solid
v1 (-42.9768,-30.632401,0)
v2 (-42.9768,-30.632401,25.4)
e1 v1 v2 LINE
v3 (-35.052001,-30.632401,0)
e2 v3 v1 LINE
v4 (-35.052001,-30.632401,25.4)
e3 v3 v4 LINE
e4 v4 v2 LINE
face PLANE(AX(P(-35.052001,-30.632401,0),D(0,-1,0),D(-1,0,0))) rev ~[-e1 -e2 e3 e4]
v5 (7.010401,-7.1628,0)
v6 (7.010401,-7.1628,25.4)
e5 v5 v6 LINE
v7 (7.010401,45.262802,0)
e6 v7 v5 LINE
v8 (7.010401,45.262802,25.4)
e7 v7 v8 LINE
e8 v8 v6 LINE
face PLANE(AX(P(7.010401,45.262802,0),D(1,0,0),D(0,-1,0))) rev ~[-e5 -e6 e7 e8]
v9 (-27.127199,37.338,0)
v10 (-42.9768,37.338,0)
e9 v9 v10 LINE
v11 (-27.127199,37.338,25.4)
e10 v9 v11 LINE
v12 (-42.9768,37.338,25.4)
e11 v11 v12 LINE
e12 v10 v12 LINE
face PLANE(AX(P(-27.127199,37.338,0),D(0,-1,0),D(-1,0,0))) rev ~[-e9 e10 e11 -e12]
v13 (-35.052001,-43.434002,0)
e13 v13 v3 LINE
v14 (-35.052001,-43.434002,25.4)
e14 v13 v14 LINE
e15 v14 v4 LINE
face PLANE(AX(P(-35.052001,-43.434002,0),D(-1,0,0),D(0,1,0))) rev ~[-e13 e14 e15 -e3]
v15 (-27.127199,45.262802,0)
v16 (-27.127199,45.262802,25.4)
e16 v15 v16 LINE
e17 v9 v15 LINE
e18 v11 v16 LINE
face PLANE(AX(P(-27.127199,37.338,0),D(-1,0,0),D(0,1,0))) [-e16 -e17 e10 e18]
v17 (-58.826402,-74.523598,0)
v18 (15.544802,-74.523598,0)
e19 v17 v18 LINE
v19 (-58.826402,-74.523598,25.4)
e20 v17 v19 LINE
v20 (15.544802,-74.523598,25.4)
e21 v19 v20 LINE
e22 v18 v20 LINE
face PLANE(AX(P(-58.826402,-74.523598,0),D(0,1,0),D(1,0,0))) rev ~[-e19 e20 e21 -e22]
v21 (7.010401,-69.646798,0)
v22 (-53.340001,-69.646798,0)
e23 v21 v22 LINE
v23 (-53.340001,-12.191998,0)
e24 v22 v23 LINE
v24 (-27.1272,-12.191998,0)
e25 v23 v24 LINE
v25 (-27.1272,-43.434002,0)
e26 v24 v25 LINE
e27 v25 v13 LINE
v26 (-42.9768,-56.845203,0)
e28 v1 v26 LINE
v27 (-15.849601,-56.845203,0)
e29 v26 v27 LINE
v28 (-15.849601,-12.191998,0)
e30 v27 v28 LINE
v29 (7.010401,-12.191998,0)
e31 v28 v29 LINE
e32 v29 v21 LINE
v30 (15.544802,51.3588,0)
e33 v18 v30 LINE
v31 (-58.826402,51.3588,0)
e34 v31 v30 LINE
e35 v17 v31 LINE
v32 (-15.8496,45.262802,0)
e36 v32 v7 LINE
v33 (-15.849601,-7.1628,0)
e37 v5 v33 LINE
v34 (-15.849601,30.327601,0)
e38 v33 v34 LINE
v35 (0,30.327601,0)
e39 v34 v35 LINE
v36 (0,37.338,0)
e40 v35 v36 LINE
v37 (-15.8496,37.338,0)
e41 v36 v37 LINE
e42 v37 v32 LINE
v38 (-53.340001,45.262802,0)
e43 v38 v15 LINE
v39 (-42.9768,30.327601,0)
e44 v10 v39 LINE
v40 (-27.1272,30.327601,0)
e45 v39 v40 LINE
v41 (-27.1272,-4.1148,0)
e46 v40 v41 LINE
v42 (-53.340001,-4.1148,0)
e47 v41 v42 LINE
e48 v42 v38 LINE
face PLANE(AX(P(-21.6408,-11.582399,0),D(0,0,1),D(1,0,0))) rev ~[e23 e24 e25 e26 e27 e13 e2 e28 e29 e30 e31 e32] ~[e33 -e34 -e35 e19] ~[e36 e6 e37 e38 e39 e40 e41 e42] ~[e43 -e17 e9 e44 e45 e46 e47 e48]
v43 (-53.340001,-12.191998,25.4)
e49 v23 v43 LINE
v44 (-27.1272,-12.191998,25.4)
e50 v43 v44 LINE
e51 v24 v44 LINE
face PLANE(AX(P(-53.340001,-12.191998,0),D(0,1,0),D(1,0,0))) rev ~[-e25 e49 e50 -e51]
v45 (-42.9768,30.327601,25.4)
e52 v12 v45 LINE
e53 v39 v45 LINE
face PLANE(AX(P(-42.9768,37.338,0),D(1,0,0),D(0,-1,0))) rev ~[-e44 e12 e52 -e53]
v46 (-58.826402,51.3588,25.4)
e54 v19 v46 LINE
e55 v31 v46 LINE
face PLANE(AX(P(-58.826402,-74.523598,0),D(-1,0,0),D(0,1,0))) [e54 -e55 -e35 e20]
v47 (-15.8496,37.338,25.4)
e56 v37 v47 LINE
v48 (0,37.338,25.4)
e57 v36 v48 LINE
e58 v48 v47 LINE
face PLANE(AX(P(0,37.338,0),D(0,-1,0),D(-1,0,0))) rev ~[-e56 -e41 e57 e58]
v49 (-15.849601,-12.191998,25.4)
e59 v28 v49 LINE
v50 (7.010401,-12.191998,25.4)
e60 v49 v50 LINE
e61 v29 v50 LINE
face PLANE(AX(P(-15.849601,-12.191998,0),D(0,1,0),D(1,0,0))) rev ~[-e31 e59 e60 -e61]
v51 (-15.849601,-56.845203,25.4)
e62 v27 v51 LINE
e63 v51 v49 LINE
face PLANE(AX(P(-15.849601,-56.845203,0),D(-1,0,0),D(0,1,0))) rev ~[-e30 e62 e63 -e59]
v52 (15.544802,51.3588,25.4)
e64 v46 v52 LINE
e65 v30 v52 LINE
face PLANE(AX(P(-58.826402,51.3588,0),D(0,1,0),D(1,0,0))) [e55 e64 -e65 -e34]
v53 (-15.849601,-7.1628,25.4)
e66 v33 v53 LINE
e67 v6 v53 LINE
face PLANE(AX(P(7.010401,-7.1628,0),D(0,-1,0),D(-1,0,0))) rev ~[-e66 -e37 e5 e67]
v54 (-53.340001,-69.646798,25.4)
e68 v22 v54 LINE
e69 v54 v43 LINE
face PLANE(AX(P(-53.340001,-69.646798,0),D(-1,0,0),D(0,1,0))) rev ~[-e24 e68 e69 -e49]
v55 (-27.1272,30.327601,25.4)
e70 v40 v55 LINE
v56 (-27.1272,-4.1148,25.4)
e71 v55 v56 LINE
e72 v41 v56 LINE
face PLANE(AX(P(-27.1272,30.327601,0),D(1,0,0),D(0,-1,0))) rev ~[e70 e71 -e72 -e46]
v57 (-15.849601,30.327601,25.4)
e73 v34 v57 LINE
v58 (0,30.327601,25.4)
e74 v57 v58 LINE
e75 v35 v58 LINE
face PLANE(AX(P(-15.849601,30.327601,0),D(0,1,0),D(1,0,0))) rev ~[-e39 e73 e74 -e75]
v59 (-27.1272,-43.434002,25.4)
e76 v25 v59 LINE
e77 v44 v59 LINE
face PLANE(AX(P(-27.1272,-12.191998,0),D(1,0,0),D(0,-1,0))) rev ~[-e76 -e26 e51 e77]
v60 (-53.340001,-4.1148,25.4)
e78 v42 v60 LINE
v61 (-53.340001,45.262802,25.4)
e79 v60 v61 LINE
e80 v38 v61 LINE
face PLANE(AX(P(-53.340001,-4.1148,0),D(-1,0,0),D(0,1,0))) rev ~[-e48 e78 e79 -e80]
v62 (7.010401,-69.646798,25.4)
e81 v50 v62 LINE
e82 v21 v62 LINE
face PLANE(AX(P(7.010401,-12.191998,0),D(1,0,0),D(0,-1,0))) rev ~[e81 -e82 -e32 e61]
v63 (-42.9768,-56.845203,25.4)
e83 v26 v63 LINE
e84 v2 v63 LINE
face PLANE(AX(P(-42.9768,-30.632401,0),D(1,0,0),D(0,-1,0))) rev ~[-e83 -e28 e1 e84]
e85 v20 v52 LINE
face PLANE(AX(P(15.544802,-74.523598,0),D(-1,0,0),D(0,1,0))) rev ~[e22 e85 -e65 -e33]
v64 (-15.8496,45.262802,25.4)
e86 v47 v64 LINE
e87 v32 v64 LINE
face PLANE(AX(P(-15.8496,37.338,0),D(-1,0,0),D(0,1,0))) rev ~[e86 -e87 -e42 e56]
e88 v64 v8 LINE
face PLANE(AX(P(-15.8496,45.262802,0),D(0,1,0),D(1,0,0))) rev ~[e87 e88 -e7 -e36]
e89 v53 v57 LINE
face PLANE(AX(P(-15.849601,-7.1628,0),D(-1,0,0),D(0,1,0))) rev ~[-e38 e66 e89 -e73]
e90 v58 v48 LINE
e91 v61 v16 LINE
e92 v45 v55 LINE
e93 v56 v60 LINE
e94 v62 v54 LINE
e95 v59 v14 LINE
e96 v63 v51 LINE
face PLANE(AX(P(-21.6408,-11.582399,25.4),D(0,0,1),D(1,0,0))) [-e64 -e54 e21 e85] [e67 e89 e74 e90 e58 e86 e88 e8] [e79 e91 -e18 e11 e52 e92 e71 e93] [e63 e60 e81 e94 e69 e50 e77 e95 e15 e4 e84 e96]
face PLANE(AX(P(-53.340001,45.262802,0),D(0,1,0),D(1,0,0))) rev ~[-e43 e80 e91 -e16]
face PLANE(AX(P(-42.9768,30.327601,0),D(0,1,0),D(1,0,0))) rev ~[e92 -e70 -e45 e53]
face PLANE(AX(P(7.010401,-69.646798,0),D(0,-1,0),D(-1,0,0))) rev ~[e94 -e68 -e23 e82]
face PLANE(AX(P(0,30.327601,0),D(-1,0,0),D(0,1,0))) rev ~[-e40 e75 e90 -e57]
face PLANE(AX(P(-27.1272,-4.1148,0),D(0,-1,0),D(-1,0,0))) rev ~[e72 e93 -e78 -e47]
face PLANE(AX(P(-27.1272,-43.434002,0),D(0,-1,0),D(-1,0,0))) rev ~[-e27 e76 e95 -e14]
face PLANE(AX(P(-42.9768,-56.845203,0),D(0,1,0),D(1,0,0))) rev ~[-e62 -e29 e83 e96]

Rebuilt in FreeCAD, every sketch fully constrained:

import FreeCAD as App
import Part
import Sketcher
Q = App.Units.Quantity


def add_polygon(sketch, points):
    """Adds a closed chain of lines whose ends are joined by coincident constraints."""
    first, n = sketch.GeometryCount, len(points)
    for a, b in zip(points, points[1:] + points[:1]):
        sketch.addGeometry(Part.LineSegment(App.Vector(*a, 0), App.Vector(*b, 0)), False)
    for i in range(n):
        sketch.addConstraint(Sketcher.Constraint("Coincident", first + i, 2, first + (i + 1) % n, 1))

doc = App.newDocument("Part")
body = doc.addObject("PartDesign::Body", "Body")

# Sketch on XY plane
sketch1 = doc.addObject("Sketcher::SketchObject", "Sketch")
body.addObject(sketch1)
sketch1.AttachmentSupport = (doc.XY_Plane, [""])
sketch1.MapMode = "FlatFace"
add_polygon(sketch1, [(-59, 51), (-59, -75), (16, -75), (16, 51)])  # lines 0-3
add_polygon(sketch1, [(-53, -70), (-53, -12), (-27, -12), (-27, -43), (-35, -43), (-35, -31), (-43, -31), (-43, -57), (-16, -57), (-16, -12), (7, -12), (7, -70)])  # lines 4-15
add_polygon(sketch1, [(-53, -4), (-53, 45), (-27, 45), (-27, 37), (-43, 37), (-43, 30), (-27, 30), (-27, -4)])  # lines 16-23
add_polygon(sketch1, [(-16, 45), (7, 45), (7, -7), (-16, -7), (-16, 30), (0, 30), (0, 37), (-16, 37)])  # lines 24-31
sketch1.addConstraint([
    Sketcher.Constraint("Vertical", 0),
    Sketcher.Constraint("Horizontal", 1),
    Sketcher.Constraint("Vertical", 2),
    Sketcher.Constraint("Horizontal", 3),
    Sketcher.Constraint("Vertical", 4),
    Sketcher.Constraint("Horizontal", 5),
    Sketcher.Constraint("Vertical", 6),
    Sketcher.Constraint("Horizontal", 7),
    Sketcher.Constraint("Vertical", 8),
    Sketcher.Constraint("Horizontal", 9),
    Sketcher.Constraint("Vertical", 10),
    Sketcher.Constraint("Horizontal", 11),
    Sketcher.Constraint("Vertical", 12),
    Sketcher.Constraint("Horizontal", 13),
    Sketcher.Constraint("Vertical", 14),
    Sketcher.Constraint("Horizontal", 15),
    Sketcher.Constraint("Vertical", 16),
    Sketcher.Constraint("Horizontal", 17),
    Sketcher.Constraint("Vertical", 18),
    Sketcher.Constraint("Horizontal", 19),
    Sketcher.Constraint("Vertical", 20),
    Sketcher.Constraint("Horizontal", 21),
    Sketcher.Constraint("Vertical", 22),
    Sketcher.Constraint("Horizontal", 23),
    Sketcher.Constraint("Horizontal", 24),
    Sketcher.Constraint("Vertical", 25),
    Sketcher.Constraint("Horizontal", 26),
    Sketcher.Constraint("Vertical", 27),
    Sketcher.Constraint("Horizontal", 28),
    Sketcher.Constraint("Vertical", 29),
    Sketcher.Constraint("Horizontal", 30),
    Sketcher.Constraint("Vertical", 31),
    Sketcher.Constraint("PointOnObject", 28, 2, -2),
    Sketcher.Constraint("Horizontal", 5, 2, 12, 2),
    Sketcher.Constraint("Horizontal", 17, 2, 24, 2),
    Sketcher.Constraint("Horizontal", 21, 2, 27, 2),
    Sketcher.Constraint("Horizontal", 19, 2, 29, 2),
    Sketcher.Constraint("Vertical", 15, 2, 16, 2),
    Sketcher.Constraint("Vertical", 6, 2, 17, 2),
    Sketcher.Constraint("Vertical", 10, 2, 19, 2),
    Sketcher.Constraint("Vertical", 18, 2, 21, 2),
    Sketcher.Constraint("Vertical", 14, 2, 24, 2),
    Sketcher.Constraint("Vertical", 12, 2, 26, 2),
    Sketcher.Constraint("Vertical", 27, 2, 30, 2),
    Sketcher.Constraint("Equal", 7, 9),
    Sketcher.Constraint("Equal", 21, 28),
    Sketcher.Constraint("Equal", 23, 10),
    Sketcher.Constraint("Equal", 7, 18),
    Sketcher.Constraint("DistanceX", 13, 1, 13, 2, Q("0.9000001 in")),
    Sketcher.Constraint("DistanceY", 6, 2, 6, 1, Q("1.2300002 in")),
    Sketcher.Constraint("DistanceX", 4, 2, -1, 1, Q("2.1 in")),
    Sketcher.Constraint("DistanceX", 1, 1, 1, 2, Q("2.9280002 in")),
    Sketcher.Constraint("DistanceX", 5, 1, 5, 2, Q("1.032 in")),
    Sketcher.Constraint("DistanceX", 7, 2, 7, 1, Q("0.312 in")),
    Sketcher.Constraint("DistanceY", 0, 2, 0, 1, Q("4.9559999 in")),
    Sketcher.Constraint("DistanceY", 4, 1, 4, 2, Q("2.262 in")),
    Sketcher.Constraint("DistanceY", 8, 1, 8, 2, Q("0.504 in")),
    Sketcher.Constraint("DistanceY", 16, 1, 16, 2, Q("1.9440001 in")),
    Sketcher.Constraint("DistanceY", 20, 2, 20, 1, Q("0.276 in")),
    Sketcher.Constraint("DistanceY", 25, 2, 25, 1, Q("2.0640001 in")),
    Sketcher.Constraint("DistanceY", 4, 2, -1, 1, Q("0.4799999 in")),
    Sketcher.Constraint("DistanceY", -1, 1, 18, 2, Q("1.47 in")),
    Sketcher.Constraint("DistanceX", 5, 2, 1, 2, Q("1.6800001 in")),
    Sketcher.Constraint("DistanceY", 16, 2, 3, 2, Q("0.2399999 in")),
])
pad1 = doc.addObject("PartDesign::Pad", "Pad")
body.addObject(pad1)
pad1.Profile = sketch1
pad1.Length = Q("1 in")

doc.recompute()
